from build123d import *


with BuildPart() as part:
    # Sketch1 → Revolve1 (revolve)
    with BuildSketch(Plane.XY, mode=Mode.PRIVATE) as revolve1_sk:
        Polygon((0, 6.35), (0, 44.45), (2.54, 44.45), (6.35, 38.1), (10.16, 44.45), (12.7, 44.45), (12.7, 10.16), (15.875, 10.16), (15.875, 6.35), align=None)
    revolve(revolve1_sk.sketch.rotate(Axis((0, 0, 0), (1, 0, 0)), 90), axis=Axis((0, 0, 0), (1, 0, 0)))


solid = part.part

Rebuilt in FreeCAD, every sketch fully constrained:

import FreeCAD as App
import Part
import Sketcher
Q = App.Units.Quantity


def add_polygon(sketch, points):
    """Adds a closed chain of lines whose ends are joined by coincident constraints."""
    first, n = sketch.GeometryCount, len(points)
    for a, b in zip(points, points[1:] + points[:1]):
        sketch.addGeometry(Part.LineSegment(App.Vector(*a, 0), App.Vector(*b, 0)), False)
    for i in range(n):
        sketch.addConstraint(Sketcher.Constraint("Coincident", first + i, 2, first + (i + 1) % n, 1))

doc = App.newDocument("Part")
params = doc.addObject("Spreadsheet::Sheet", "Params")
for row, (alias, value) in enumerate([
    ("sketch1_width", "0.1 in"),
    ("sketch1_height", "1.5 in"),
    ("sketch1_height2", "0.15 in"),
    ("sketch1_width2", "0.625 in"),
    ("revolution_angle", "360 deg"),
], start=1):
    params.set(f"A{row}", alias)
    params.set(f"B{row}", "=" + value)
    params.setAlias(f"B{row}", alias)

body = doc.addObject("PartDesign::Body", "Body")

sketch1 = body.newObject("Sketcher::SketchObject", "Sketch")
sketch1.AttachmentSupport = (doc.getObject("XY_Plane"), [""])
sketch1.MapMode = "FlatFace"
add_polygon(sketch1, [(0, 44.5), (0, 6.3), (15.9, 6.3), (15.9, 10.2), (12.7, 10.2), (12.7, 44.5), (10.2, 44.5), (6.3, 38.1), (2.5, 44.5)])
sketch1.addConstraint([
    Sketcher.Constraint("Vertical", 0),
    Sketcher.Constraint("Horizontal", 1),
    Sketcher.Constraint("Vertical", 2),
    Sketcher.Constraint("Horizontal", 3),
    Sketcher.Constraint("Vertical", 4),
    Sketcher.Constraint("Horizontal", 5),
    Sketcher.Constraint("Horizontal", 8),
    Sketcher.Constraint("PointOnObject", 0, 2, -2),
    Sketcher.Constraint("Horizontal", 5, 2, 7, 2),
    Sketcher.Constraint("Equal", 5, 8),
    Sketcher.Constraint("Equal", 6, 7),
    Sketcher.Constraint("DistanceX", 5, 2, 5, 1, Q("0.1 in")),
    Sketcher.Constraint("DistanceY", 0, 2, 0, 1, Q("1.5 in")),
    Sketcher.Constraint("DistanceY", 2, 1, 2, 2, Q("0.15 in")),
    Sketcher.Constraint("DistanceY", -1, 1, 2, 2, Q("0.4 in")),
    Sketcher.Constraint("DistanceX", -1, 1, 3, 2, Q("0.5 in")),
    Sketcher.Constraint("DistanceY", -1, 1, 6, 2, Q("1.5 in")),
    Sketcher.Constraint("DistanceX", 1, 1, 1, 2, Q("0.625 in")),
])
sketch1.setExpression("Constraints[20]", "Params.sketch1_width")
sketch1.setExpression("Constraints[21]", "Params.sketch1_height")
sketch1.setExpression("Constraints[22]", "Params.sketch1_height2")
sketch1.setExpression("Constraints[26]", "Params.sketch1_width2")
revolution = body.newObject("PartDesign::Revolution", "Revolution")
revolution.Profile = sketch1
revolution.ReferenceAxis = (sketch1, ["H_Axis"])
revolution.setExpression("Angle", "Params.revolution_angle")

doc.recompute()
